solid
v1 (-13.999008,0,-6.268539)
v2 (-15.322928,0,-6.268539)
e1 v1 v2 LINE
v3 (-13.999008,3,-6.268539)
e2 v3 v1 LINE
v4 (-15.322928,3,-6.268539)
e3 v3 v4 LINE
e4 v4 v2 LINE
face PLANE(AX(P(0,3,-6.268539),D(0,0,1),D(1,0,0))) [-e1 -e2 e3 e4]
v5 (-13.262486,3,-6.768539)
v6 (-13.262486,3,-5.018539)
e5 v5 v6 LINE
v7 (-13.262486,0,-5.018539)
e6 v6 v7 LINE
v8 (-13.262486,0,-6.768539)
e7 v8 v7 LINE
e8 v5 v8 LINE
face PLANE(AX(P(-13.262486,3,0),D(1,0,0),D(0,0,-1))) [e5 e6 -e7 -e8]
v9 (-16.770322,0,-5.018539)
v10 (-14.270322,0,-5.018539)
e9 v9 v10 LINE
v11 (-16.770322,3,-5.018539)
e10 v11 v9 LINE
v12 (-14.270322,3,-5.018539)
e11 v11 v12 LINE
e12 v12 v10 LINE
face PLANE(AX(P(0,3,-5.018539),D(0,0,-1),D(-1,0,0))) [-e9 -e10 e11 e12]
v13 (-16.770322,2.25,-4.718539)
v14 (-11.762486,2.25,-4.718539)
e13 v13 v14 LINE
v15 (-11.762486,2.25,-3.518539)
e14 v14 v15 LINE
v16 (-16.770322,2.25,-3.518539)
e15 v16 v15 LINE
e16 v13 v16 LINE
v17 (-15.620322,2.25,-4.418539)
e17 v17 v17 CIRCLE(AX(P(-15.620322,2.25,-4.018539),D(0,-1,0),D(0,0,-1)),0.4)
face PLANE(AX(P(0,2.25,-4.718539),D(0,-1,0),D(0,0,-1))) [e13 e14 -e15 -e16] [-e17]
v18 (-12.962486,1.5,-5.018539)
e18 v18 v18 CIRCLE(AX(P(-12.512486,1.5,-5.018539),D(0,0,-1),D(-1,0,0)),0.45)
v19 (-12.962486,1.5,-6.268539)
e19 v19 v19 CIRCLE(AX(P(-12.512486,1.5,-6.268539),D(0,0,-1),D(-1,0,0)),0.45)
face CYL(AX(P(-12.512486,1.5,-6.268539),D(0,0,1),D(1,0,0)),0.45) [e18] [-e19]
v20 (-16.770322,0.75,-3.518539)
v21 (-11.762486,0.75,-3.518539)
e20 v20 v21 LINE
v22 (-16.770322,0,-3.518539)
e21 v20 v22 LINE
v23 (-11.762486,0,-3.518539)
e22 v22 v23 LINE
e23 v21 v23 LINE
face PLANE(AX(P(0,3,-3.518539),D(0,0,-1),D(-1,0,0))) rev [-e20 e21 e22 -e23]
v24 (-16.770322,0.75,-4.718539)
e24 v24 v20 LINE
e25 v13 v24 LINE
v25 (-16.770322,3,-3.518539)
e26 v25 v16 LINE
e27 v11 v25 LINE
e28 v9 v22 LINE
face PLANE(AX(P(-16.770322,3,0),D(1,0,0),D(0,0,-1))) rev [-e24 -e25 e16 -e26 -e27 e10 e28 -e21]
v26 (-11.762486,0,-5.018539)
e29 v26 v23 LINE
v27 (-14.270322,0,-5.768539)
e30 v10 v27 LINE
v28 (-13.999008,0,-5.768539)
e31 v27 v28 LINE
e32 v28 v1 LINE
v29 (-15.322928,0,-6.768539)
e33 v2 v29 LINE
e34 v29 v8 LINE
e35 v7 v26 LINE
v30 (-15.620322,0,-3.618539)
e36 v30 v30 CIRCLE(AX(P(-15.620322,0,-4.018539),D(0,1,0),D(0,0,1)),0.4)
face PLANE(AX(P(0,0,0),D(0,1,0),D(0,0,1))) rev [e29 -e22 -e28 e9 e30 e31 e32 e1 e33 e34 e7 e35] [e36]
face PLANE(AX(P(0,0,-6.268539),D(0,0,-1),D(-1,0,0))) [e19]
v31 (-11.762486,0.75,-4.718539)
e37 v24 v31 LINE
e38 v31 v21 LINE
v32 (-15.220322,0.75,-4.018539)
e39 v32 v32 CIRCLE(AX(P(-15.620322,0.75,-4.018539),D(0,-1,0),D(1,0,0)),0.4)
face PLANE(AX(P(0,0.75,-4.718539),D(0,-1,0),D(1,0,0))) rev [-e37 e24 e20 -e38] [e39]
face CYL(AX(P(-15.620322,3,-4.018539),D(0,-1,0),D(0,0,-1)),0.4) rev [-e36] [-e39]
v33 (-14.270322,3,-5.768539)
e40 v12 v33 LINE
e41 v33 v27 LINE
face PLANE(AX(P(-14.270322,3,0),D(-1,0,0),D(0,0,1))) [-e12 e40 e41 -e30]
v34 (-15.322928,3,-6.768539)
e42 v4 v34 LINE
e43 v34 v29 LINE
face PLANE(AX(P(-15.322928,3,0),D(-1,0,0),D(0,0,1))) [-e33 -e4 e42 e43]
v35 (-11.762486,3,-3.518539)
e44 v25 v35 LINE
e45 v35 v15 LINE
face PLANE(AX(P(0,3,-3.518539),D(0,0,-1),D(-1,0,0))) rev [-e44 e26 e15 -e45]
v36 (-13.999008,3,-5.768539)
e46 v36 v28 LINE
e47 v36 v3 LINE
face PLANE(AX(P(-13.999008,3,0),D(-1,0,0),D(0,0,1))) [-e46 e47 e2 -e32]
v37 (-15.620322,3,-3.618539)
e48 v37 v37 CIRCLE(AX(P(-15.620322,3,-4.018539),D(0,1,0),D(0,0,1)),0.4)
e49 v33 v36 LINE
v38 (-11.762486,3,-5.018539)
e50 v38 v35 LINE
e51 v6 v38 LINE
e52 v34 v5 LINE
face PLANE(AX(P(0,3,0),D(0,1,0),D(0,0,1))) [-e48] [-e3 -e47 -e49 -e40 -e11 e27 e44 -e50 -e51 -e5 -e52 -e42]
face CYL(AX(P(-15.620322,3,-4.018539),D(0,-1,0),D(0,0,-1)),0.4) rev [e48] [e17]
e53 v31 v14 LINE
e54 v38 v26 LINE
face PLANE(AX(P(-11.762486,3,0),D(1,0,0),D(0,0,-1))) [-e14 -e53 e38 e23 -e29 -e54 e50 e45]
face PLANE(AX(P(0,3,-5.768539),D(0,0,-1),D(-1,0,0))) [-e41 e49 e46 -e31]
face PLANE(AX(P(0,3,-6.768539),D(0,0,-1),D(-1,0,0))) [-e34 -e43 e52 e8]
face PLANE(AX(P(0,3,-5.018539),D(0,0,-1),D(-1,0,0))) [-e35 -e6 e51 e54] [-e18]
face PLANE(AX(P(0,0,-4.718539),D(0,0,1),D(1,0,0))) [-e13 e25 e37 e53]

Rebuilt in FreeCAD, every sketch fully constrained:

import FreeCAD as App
import Part
import Sketcher

V = App.Vector
Q = App.Units.Quantity


def add_polygon(sketch, points):
    """Adds a closed chain of lines whose ends are joined by coincident constraints."""
    first, n = sketch.GeometryCount, len(points)
    for a, b in zip(points, points[1:] + points[:1]):
        sketch.addGeometry(Part.LineSegment(App.Vector(*a, 0), App.Vector(*b, 0)), False)
    for i in range(n):
        sketch.addConstraint(Sketcher.Constraint("Coincident", first + i, 2, first + (i + 1) % n, 1))

doc = App.newDocument("Part")
body = doc.addObject("PartDesign::Body", "Body")

sketch1 = doc.addObject("Sketcher::SketchObject", "Sketch")
body.addObject(sketch1)
sketch1.AttachmentSupport = (doc.XZ_Plane, [""])
sketch1.MapMode = "FlatFace"
add_polygon(sketch1, [(-14.270322, -5.018539), (-16.770322, -5.018539), (-16.770322, -3.518539), (-11.762486, -3.518539), (-11.762486, -5.018539), (-13.262486, -5.018539), (-13.262486, -6.768539), (-15.322928, -6.768539), (-15.322928, -6.268539), (-13.999008, -6.268539), (-13.999008, -5.768539), (-14.270322, -5.768539)])
sketch1.addGeometry(Part.Circle(V(-15.620322, -4.018539, 0), V(0, 0, 1), 0.4), False)
sketch1.addConstraint([
    Sketcher.Constraint("Horizontal", 0),
    Sketcher.Constraint("Vertical", 1),
    Sketcher.Constraint("Horizontal", 2),
    Sketcher.Constraint("Vertical", 3),
    Sketcher.Constraint("Horizontal", 4),
    Sketcher.Constraint("Vertical", 5),
    Sketcher.Constraint("Horizontal", 6),
    Sketcher.Constraint("Vertical", 7),
    Sketcher.Constraint("Horizontal", 8),
    Sketcher.Constraint("Vertical", 9),
    Sketcher.Constraint("Horizontal", 10),
    Sketcher.Constraint("Vertical", 11),
    Sketcher.Constraint("Horizontal", 0, 2, 3, 2),
    Sketcher.Constraint("Equal", 4, 1),
    Sketcher.Constraint("Equal", 7, 9),
    Sketcher.Constraint("Diameter", 12, Q("0.8 mm")),
    Sketcher.Constraint("DistanceX", 0, 2, 0, 1, Q("2.5 mm")),
    Sketcher.Constraint("DistanceX", 4, 2, 4, 1, Q("1.5 mm")),
    Sketcher.Constraint("DistanceY", 7, 1, 7, 2, Q("0.5 mm")),
    Sketcher.Constraint("DistanceY", 0, 2, 12, 3, Q("1 mm")),
    Sketcher.Constraint("DistanceY", 5, 2, 5, 1, Q("1.75 mm")),
    Sketcher.Constraint("DistanceX", 0, 2, 12, 3, Q("1.15 mm")),
    Sketcher.Constraint("DistanceX", 8, 1, 8, 2, Q("1.32392 mm")),
    Sketcher.Constraint("DistanceX", 2, 1, 2, 2, Q("5.007836 mm")),
    Sketcher.Constraint("DistanceX", 6, 2, 6, 1, Q("2.060442 mm")),
    Sketcher.Constraint("DistanceY", 12, 3, -1, 1, Q("4.018539 mm")),
    Sketcher.Constraint("DistanceX", 6, 2, -1, 1, Q("15.322928 mm")),
])
pad1 = doc.addObject("PartDesign::Pad", "Pad")
body.addObject(pad1)
pad1.Profile = sketch1
pad1.Length = 3
pad1.Reversed = True

sketch2 = doc.addObject("Sketcher::SketchObject", "Sketch001")
body.addObject(sketch2)
sketch2.AttachmentSupport = (doc.XY_Plane, [""])
sketch2.MapMode = "FlatFace"
sketch2.AttachmentOffset = App.Placement(V(0, 0, -3.518539), App.Rotation())
add_polygon(sketch2, [(-16.770322, 2.25), (-16.770322, 0.75), (-11.762486, 0.75), (-11.762486, 2.25)])
sketch2.addConstraint([
    Sketcher.Constraint("Vertical", 0),
    Sketcher.Constraint("Horizontal", 1),
    Sketcher.Constraint("Vertical", 2),
    Sketcher.Constraint("Horizontal", 3),
    Sketcher.Constraint("DistanceY", 0, 2, 0, 1, Q("1.5 mm")),
    Sketcher.Constraint("DistanceY", -1, 1, 0, 2, Q("0.75 mm")),
    Sketcher.Constraint("DistanceX", 1, 1, 1, 2, Q("5.007836 mm")),
    Sketcher.Constraint("DistanceX", 0, 2, -1, 1, Q("16.770322 mm")),
])
pocket1 = doc.addObject("PartDesign::Pocket", "Pocket")
body.addObject(pocket1)
pocket1.Profile = sketch2
pocket1.Length = 1.2

sketch3 = doc.addObject("Sketcher::SketchObject", "Sketch002")
body.addObject(sketch3)
sketch3.AttachmentSupport = (doc.XY_Plane, [""])
sketch3.MapMode = "FlatFace"
sketch3.AttachmentOffset = App.Placement(V(0, 0, -5.018539), App.Rotation())
sketch3.addGeometry(Part.Circle(V(-12.512486, 1.5, 0), V(0, 0, 1), 0.45), False)
sketch3.addConstraint([
    Sketcher.Constraint("Diameter", 0, Q("0.9 mm")),
    Sketcher.Constraint("DistanceY", -1, 1, 0, 3, Q("1.5 mm")),
    Sketcher.Constraint("DistanceX", 0, 3, -1, 1, Q("12.512486 mm")),
])
pad2 = doc.addObject("PartDesign::Pad", "Pad001")
body.addObject(pad2)
pad2.Profile = sketch3
pad2.Length = 1.25
pad2.Reversed = True

doc.recompute()
